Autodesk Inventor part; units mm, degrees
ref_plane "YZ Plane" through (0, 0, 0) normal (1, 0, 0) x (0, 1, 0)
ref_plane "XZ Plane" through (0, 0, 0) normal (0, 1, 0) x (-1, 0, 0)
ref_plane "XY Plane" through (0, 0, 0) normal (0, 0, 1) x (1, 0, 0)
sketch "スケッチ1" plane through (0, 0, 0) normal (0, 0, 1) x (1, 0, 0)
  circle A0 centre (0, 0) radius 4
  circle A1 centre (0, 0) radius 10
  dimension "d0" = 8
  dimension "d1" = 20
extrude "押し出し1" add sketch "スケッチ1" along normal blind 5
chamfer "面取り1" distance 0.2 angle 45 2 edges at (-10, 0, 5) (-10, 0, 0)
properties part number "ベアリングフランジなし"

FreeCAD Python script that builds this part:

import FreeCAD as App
import Part
import Sketcher
from FreeCAD import Vector


def edges_at(feature, points):
    """Names of the edges that pass closest to the given points."""
    edges = feature.Shape.Edges
    near = lambda p: min(range(len(edges)), key=lambda i: edges[i].distToShape(Part.Vertex(*p))[0])
    return sorted({f"Edge{near(p) + 1}" for p in points})

doc = App.newDocument("Part")
body = doc.addObject("PartDesign::Body", "Body")

sketch1 = body.newObject("Sketcher::SketchObject", "Sketch")
sketch1.AttachmentSupport = (doc.getObject("XY_Plane"), [""])
sketch1.MapMode = "FlatFace"
sketch1.addGeometry(Part.Circle(Vector(0, 0, 0), Vector(0, 0, 1), 10), False)
sketch1.addGeometry(Part.Circle(Vector(0, 0, 0), Vector(0, 0, 1), 4), False)
sketch1.addConstraint(Sketcher.Constraint("Coincident", 0, 3, -1, 1))
sketch1.addConstraint(Sketcher.Constraint("Coincident", 1, 3, -1, 1))
sketch1.addConstraint(Sketcher.Constraint("Diameter", 0, 20.0))
sketch1.addConstraint(Sketcher.Constraint("Diameter", 1, 8.0))
pad1 = body.newObject("PartDesign::Pad", "Pad")
pad1.Profile = sketch1
pad1.Length = 5
doc.recompute()

chamfer = body.newObject("PartDesign::Chamfer", "Chamfer")
chamfer.Base = (pad1, edges_at(pad1, [(-10, 0, 5), (-10, 0, 0)]))
chamfer.Size = 0.2

doc.recompute()
